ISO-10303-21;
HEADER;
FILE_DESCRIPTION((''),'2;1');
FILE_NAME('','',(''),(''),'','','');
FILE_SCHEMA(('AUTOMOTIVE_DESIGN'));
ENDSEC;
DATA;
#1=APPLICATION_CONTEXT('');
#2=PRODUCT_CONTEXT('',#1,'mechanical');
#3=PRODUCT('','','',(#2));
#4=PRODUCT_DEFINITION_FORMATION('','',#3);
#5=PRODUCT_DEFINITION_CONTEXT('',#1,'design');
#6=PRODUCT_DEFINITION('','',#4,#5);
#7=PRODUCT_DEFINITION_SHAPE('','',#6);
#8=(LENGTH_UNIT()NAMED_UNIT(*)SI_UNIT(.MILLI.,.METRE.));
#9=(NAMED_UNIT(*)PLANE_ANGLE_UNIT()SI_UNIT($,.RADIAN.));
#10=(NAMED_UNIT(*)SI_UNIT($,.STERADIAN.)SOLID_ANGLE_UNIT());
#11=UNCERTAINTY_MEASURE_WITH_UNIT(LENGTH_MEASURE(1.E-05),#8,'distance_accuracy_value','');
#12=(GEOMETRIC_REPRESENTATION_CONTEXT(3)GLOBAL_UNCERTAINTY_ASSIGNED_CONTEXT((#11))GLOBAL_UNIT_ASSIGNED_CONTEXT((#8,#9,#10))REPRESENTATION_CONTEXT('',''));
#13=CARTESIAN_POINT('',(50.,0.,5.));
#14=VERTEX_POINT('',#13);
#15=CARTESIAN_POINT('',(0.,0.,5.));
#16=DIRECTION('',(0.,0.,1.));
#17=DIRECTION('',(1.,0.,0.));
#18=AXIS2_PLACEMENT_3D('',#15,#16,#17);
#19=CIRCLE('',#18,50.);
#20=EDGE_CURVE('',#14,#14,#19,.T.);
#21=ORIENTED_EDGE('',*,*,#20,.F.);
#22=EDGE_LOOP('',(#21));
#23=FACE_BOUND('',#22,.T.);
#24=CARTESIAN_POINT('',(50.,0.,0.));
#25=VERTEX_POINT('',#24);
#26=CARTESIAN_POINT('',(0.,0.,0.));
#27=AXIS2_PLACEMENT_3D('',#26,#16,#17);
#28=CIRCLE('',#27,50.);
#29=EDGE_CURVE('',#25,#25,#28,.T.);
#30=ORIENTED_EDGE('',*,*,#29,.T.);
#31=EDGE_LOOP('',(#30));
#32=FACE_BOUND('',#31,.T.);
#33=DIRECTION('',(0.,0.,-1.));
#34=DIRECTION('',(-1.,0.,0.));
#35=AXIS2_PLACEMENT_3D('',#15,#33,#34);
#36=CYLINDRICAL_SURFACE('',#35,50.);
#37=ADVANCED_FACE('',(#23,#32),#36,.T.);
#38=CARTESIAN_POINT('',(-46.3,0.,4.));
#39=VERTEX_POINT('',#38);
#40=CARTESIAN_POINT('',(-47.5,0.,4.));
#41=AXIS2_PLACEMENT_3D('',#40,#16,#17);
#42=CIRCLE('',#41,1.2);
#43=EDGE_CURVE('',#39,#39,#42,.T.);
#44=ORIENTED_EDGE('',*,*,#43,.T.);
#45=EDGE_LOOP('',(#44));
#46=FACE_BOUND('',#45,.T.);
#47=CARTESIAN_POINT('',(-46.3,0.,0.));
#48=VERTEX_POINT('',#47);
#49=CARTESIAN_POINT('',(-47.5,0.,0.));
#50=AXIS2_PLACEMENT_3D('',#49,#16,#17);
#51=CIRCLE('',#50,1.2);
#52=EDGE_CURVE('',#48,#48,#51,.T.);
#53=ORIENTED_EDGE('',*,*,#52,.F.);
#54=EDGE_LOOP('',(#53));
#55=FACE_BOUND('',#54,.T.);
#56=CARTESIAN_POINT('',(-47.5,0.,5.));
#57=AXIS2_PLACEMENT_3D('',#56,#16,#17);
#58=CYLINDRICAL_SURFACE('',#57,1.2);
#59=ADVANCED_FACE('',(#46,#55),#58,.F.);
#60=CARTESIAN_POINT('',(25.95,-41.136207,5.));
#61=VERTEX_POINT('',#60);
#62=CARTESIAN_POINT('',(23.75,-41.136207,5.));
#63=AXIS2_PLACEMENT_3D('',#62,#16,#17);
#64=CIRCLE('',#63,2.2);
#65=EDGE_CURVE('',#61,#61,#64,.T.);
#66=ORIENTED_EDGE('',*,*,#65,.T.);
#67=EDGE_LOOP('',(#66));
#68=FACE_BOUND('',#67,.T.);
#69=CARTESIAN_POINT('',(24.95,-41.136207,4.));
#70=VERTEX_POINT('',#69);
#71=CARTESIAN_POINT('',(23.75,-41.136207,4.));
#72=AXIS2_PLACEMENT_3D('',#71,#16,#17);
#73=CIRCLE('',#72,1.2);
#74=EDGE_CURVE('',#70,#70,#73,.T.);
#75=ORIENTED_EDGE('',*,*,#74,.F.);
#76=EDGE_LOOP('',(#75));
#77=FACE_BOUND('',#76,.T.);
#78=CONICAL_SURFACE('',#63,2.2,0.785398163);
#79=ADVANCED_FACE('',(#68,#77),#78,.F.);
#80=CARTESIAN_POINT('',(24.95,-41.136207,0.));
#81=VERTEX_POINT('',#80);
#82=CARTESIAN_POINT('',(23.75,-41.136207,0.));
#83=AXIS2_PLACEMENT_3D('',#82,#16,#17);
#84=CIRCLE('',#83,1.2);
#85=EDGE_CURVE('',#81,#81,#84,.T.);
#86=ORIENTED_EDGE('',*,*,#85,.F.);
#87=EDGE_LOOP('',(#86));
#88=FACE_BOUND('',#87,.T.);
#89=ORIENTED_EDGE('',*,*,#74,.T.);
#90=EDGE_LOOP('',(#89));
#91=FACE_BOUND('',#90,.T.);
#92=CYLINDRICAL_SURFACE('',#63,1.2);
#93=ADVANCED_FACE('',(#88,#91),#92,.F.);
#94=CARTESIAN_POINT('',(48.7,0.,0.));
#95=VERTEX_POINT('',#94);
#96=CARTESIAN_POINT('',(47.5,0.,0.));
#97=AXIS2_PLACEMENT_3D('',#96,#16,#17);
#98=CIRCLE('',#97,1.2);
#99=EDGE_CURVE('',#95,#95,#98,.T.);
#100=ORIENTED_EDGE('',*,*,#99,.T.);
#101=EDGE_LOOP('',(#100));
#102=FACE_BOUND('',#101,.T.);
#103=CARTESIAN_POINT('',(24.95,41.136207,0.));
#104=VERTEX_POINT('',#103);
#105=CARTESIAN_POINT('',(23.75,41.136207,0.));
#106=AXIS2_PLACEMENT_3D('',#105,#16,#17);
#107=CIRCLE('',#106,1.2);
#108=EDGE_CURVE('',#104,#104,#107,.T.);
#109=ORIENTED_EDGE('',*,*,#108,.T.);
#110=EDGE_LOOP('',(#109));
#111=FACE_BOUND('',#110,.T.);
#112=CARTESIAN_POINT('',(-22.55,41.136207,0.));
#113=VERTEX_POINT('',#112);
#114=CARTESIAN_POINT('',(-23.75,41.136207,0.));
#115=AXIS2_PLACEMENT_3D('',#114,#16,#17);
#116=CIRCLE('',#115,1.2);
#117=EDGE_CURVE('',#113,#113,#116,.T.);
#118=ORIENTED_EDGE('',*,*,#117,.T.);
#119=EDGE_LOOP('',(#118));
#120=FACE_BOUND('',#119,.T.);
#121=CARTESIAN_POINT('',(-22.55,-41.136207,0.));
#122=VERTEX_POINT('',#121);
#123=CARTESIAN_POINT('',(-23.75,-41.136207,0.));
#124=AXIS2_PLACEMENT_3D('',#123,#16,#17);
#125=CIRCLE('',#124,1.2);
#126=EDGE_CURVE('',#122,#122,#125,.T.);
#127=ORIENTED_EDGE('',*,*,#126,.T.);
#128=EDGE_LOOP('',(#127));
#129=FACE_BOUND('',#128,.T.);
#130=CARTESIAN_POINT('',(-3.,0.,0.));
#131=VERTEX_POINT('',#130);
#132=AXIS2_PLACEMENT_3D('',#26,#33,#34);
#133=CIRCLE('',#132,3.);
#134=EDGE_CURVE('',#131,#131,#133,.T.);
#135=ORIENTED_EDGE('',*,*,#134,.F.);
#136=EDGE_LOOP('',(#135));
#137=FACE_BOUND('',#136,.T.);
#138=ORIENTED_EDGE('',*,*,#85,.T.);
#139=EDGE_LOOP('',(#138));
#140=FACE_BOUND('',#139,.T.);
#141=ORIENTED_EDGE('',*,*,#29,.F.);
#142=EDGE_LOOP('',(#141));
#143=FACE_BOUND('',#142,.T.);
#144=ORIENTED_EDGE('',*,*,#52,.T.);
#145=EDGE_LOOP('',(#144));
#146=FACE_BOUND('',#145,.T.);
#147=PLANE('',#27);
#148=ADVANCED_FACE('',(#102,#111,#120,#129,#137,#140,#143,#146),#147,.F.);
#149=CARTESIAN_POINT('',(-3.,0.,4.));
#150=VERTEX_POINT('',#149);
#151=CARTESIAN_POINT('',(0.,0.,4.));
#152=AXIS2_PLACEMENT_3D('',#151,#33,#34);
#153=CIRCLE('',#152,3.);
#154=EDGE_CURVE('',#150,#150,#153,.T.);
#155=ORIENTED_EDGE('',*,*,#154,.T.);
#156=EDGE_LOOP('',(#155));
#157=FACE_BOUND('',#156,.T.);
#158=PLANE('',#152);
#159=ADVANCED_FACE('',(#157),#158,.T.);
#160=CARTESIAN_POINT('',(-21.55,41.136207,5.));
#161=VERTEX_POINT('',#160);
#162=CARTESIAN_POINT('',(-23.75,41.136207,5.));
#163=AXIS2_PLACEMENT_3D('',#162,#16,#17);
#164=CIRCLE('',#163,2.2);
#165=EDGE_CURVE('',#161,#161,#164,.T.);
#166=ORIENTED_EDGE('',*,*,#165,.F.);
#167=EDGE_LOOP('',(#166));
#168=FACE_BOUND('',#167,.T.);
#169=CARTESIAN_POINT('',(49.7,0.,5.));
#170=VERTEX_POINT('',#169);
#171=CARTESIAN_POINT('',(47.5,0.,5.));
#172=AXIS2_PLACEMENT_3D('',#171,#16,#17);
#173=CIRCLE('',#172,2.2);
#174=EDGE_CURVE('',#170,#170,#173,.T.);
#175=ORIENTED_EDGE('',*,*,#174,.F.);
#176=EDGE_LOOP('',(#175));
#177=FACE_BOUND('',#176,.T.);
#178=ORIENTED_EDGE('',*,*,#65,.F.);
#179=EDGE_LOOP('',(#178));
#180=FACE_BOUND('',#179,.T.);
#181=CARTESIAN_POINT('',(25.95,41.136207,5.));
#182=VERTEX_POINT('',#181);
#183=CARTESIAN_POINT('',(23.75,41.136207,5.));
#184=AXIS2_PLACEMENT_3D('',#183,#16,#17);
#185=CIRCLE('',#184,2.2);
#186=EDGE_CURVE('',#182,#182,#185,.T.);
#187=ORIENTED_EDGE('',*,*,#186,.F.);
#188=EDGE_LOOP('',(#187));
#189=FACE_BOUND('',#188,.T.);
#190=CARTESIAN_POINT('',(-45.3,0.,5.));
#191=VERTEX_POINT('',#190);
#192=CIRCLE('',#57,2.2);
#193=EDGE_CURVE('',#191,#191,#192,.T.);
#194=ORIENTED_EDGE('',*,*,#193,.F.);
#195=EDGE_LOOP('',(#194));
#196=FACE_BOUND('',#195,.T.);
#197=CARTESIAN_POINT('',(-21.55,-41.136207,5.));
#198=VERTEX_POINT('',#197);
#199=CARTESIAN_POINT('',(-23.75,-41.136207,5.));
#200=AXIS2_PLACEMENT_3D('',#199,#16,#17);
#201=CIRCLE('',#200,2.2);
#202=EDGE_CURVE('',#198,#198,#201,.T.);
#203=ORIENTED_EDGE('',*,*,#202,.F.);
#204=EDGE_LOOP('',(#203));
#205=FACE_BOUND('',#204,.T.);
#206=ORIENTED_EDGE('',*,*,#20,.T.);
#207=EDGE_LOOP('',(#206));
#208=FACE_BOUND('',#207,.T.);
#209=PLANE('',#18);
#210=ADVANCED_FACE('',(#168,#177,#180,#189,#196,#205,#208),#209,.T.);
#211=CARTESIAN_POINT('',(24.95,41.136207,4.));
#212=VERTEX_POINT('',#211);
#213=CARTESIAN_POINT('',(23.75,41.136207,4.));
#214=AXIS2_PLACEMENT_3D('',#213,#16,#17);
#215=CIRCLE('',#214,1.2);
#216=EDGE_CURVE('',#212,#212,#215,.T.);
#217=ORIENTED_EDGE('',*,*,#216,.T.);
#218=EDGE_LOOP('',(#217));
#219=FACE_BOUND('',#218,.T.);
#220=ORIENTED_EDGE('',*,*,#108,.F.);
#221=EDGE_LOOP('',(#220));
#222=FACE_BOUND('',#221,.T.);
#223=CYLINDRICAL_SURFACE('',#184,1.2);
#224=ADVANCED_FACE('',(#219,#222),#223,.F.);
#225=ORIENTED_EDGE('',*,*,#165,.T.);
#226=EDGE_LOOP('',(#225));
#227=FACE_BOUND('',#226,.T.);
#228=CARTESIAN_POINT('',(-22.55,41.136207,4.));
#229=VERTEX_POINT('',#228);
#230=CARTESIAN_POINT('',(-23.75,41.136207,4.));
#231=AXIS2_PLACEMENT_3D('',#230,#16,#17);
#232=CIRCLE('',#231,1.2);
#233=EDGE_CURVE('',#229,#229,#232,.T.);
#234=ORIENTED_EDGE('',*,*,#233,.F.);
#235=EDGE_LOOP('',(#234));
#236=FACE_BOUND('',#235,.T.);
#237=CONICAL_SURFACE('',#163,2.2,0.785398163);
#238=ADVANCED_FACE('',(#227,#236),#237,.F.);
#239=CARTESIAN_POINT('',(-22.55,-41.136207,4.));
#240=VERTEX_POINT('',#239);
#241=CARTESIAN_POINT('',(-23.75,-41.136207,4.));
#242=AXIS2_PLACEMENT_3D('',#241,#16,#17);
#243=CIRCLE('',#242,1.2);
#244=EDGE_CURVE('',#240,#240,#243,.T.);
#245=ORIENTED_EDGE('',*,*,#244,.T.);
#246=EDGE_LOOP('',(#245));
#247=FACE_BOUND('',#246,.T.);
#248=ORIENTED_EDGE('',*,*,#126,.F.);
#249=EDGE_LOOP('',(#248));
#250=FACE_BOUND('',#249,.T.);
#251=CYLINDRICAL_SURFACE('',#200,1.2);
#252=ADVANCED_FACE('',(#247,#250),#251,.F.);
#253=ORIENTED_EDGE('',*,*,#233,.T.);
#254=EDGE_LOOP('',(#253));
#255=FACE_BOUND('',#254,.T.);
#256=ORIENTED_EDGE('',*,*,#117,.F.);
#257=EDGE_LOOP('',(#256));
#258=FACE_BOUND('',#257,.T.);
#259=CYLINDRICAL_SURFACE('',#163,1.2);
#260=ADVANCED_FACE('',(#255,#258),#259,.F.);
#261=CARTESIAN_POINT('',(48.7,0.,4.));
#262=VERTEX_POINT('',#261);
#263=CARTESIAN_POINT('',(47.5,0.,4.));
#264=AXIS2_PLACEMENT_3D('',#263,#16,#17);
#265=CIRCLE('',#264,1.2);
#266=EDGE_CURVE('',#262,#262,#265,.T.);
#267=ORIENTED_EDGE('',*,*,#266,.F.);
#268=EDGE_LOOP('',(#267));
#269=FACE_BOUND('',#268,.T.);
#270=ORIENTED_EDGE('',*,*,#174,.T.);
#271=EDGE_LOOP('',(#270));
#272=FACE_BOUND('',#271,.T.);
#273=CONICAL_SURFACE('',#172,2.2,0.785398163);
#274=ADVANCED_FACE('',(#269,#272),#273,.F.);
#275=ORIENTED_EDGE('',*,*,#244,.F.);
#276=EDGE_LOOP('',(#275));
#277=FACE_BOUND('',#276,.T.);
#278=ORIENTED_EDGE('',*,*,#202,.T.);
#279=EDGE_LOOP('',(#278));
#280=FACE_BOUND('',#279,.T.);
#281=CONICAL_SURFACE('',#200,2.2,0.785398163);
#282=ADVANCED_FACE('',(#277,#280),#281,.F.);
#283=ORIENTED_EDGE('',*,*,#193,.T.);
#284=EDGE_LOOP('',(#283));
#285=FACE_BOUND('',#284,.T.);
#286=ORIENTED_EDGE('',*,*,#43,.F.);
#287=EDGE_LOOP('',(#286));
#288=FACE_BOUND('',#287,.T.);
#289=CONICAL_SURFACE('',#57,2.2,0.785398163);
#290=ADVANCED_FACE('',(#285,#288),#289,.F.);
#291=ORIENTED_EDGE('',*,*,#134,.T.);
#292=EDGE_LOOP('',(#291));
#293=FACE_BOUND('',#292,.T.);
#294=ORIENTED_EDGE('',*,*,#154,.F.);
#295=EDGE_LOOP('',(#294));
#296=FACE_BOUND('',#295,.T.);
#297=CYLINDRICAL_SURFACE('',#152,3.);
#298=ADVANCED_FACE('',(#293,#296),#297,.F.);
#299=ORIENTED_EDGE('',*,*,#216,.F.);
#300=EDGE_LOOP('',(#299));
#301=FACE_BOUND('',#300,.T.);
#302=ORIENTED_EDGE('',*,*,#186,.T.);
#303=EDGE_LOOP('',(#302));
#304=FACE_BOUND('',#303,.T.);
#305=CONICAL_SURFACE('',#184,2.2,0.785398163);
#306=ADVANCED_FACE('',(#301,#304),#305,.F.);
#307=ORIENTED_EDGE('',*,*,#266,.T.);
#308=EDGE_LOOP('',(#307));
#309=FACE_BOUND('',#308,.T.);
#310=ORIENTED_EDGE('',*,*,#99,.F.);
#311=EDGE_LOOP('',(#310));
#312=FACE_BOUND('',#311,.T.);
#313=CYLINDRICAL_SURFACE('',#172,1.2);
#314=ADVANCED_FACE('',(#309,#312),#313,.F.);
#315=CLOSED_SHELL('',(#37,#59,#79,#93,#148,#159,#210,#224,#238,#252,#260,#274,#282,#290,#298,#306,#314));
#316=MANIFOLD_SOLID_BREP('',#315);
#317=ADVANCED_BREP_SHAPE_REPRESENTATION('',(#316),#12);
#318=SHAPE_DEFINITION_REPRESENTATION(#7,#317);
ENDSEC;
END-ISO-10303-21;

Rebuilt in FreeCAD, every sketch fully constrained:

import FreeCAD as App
import Part
import Sketcher

doc = App.newDocument("Part")
body = doc.addObject("PartDesign::Body", "Body")

# Sketch on XY plane
sketch1 = body.newObject("Sketcher::SketchObject", "Sketch")
sketch1.AttachmentSupport = (doc.getObject("XY_Plane"), [""])
sketch1.MapMode = "FlatFace"
sketch1.addGeometry(Part.Circle(App.Vector(0, 0, 0), App.Vector(0, 0, 1), 50), False)
sketch1.addConstraint([
    Sketcher.Constraint("Coincident", 0, 3, -1, 1),
    Sketcher.Constraint("Diameter", 0, 100.0),
])
pad1 = body.newObject("PartDesign::Pad", "Pad")
pad1.Profile = sketch1
pad1.Length = 5

# Sketch on XY plane
sketch2 = body.newObject("Sketcher::SketchObject", "Sketch001")
sketch2.AttachmentSupport = (doc.getObject("XY_Plane"), [""])
sketch2.MapMode = "FlatFace"
sketch2.addGeometry(Part.Circle(App.Vector(0, 0, 0), App.Vector(0, 0, 1), 3), False)
sketch2.addConstraint([
    Sketcher.Constraint("Coincident", 0, 3, -1, 1),
    Sketcher.Constraint("Diameter", 0, 6.0),
])
pocket1 = body.newObject("PartDesign::Pocket", "Pocket")
pocket1.Profile = sketch2
pocket1.Length = 4
pocket1.Reversed = True

# Sketch on XY plane
sketch3 = body.newObject("Sketcher::SketchObject", "Sketch002")
sketch3.AttachmentSupport = (doc.getObject("XY_Plane"), [""])
sketch3.MapMode = "FlatFace"
sketch3.AttachmentOffset = App.Placement(App.Vector(0, 0, 5), App.Rotation())
sketch3.addGeometry(Part.Circle(App.Vector(-47.5, 0, 0), App.Vector(0, 0, 1), 1.2), False)
sketch3.addConstraint([
    Sketcher.Constraint("PointOnObject", 0, 3, -1),
    Sketcher.Constraint("Diameter", 0, 2.4),
    Sketcher.Constraint("DistanceX", 0, 3, -1, 1, 47.5),
])
doc.recompute()
hole = body.newObject("PartDesign::Hole", "Hole")
hole.Profile = sketch3
hole.ThreadType = "None"
hole.Diameter = 2.4
hole.DepthType = "ThroughAll"
hole.HoleCutType = "Countersink"
hole.HoleCutDiameter = 4.4
hole.HoleCutCountersinkAngle = 90
doc.recompute()

polarpattern = body.newObject("PartDesign::PolarPattern", "PolarPattern")
polarpattern.Originals = [hole]
polarpattern.Axis = (doc.getObject("Z_Axis"), [""])
polarpattern.Angle = 360
polarpattern.Occurrences = 6
body.Tip = polarpattern

doc.recompute()
